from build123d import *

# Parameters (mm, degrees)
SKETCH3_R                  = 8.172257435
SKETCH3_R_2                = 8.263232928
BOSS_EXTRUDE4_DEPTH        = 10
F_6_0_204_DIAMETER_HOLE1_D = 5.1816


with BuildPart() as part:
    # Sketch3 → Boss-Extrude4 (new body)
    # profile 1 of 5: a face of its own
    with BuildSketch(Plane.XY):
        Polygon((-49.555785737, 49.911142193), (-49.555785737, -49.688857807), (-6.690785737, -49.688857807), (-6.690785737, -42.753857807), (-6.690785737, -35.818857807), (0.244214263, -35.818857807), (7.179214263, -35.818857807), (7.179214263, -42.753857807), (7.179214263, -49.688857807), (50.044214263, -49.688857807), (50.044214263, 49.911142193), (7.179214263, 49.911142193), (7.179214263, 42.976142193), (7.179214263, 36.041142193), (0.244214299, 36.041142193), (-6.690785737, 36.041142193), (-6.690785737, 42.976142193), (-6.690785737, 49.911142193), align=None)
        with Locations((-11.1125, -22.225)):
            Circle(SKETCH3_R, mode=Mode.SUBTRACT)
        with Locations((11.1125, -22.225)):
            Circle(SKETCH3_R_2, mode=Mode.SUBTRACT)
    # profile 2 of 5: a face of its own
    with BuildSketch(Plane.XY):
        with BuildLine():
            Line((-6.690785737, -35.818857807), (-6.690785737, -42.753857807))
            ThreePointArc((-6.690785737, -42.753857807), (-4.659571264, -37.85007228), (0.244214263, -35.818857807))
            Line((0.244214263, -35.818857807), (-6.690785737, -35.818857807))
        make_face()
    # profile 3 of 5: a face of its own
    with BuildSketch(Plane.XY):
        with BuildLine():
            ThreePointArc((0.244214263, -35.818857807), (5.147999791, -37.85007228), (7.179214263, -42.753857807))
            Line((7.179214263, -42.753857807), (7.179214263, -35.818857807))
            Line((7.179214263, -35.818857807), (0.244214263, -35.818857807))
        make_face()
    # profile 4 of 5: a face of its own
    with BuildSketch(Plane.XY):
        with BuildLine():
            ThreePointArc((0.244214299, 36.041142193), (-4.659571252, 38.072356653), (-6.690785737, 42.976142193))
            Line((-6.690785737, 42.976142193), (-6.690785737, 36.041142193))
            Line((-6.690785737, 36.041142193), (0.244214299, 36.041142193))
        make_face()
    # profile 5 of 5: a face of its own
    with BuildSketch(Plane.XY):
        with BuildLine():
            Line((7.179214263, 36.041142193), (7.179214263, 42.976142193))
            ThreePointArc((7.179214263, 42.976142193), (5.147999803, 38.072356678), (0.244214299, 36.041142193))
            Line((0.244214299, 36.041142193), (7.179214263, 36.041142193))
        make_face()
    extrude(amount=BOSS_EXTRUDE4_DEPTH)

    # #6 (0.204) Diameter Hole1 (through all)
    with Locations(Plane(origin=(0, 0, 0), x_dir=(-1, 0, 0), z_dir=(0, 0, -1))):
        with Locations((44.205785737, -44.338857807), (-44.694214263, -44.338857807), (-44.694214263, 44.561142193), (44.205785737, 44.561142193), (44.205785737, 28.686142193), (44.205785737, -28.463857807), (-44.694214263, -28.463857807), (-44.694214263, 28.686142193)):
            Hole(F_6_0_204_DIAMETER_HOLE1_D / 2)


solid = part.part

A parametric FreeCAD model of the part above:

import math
import FreeCAD as App
import Part
import Sketcher

doc = App.newDocument("Part")
body = doc.addObject("PartDesign::Body", "Body")

# Sketch on XY plane
sketch1 = body.newObject("Sketcher::SketchObject", "Sketch")
sketch1.AttachmentSupport = (doc.getObject("XY_Plane"), [""])
sketch1.MapMode = "FlatFace"
sketch1.addGeometry([
    Part.LineSegment(App.Vector(-49.555786, 49.911142, 0), App.Vector(-49.555786, -49.688858, 0)),  # 0
    Part.LineSegment(App.Vector(-49.555786, -49.688858, 0), App.Vector(-6.690786, -49.688858, 0)),  # 1
    Part.LineSegment(App.Vector(-6.690786, -49.688858, 0), App.Vector(-6.690786, -42.753858, 0)),  # 2
    Part.ArcOfCircle(Part.Circle(App.Vector(0.244214, -42.753858, 0), App.Vector(0, 0, 1), 6.935), math.radians(90), math.radians(180)),  # 3
    Part.ArcOfCircle(Part.Circle(App.Vector(0.244214, -42.753858, 0), App.Vector(0, 0, 1), 6.935), math.radians(0), math.radians(90)),  # 4
    Part.LineSegment(App.Vector(7.179214, -42.753858, 0), App.Vector(7.179214, -49.688858, 0)),  # 5
    Part.LineSegment(App.Vector(7.179214, -49.688858, 0), App.Vector(50.044214, -49.688858, 0)),  # 6
    Part.LineSegment(App.Vector(50.044214, -49.688858, 0), App.Vector(50.044214, 49.911142, 0)),  # 7
    Part.LineSegment(App.Vector(50.044214, 49.911142, 0), App.Vector(7.179214, 49.911142, 0)),  # 8
    Part.LineSegment(App.Vector(7.179214, 49.911142, 0), App.Vector(7.179214, 42.976142, 0)),  # 9
    Part.ArcOfCircle(Part.Circle(App.Vector(0.244214, 42.976142, 0), App.Vector(0, 0, 1), 6.935), math.radians(-90), math.radians(0)),  # 10
    Part.ArcOfCircle(Part.Circle(App.Vector(0.244214, 42.976142, 0), App.Vector(0, 0, 1), 6.935), math.radians(180), math.radians(270)),  # 11
    Part.LineSegment(App.Vector(-6.690786, 42.976142, 0), App.Vector(-6.690786, 49.911142, 0)),  # 12
    Part.LineSegment(App.Vector(-6.690786, 49.911142, 0), App.Vector(-49.555786, 49.911142, 0)),  # 13
    Part.Circle(App.Vector(-11.1125, -22.225, 0), App.Vector(0, 0, 1), 8.172257),  # 14
    Part.Circle(App.Vector(11.1125, -22.225, 0), App.Vector(0, 0, 1), 8.263233),  # 15
], False)
sketch1.addConstraint([
    Sketcher.Constraint("Coincident", 0, 2, 1, 1),
    Sketcher.Constraint("Coincident", 1, 2, 2, 1),
    Sketcher.Constraint("Tangent", 2, 2, 3, 2),
    Sketcher.Constraint("Tangent", 3, 1, 4, 2),
    Sketcher.Constraint("Tangent", 4, 1, 5, 1),
    Sketcher.Constraint("Coincident", 5, 2, 6, 1),
    Sketcher.Constraint("Coincident", 6, 2, 7, 1),
    Sketcher.Constraint("Coincident", 7, 2, 8, 1),
    Sketcher.Constraint("Coincident", 8, 2, 9, 1),
    Sketcher.Constraint("Tangent", 9, 2, 10, 2),
    Sketcher.Constraint("Tangent", 10, 1, 11, 2),
    Sketcher.Constraint("Tangent", 11, 1, 12, 1),
    Sketcher.Constraint("Coincident", 12, 2, 13, 1),
    Sketcher.Constraint("Coincident", 13, 2, 0, 1),
    Sketcher.Constraint("Vertical", 0),
    Sketcher.Constraint("Horizontal", 1),
    Sketcher.Constraint("Vertical", 2),
    Sketcher.Constraint("Vertical", 5),
    Sketcher.Constraint("Horizontal", 6),
    Sketcher.Constraint("Vertical", 7),
    Sketcher.Constraint("Horizontal", 8),
    Sketcher.Constraint("Vertical", 9),
    Sketcher.Constraint("Vertical", 12),
    Sketcher.Constraint("Horizontal", 13),
    Sketcher.Constraint("Equal", 3, 4),
    Sketcher.Constraint("Equal", 4, 10),
    Sketcher.Constraint("Equal", 10, 11),
    Sketcher.Constraint("Symmetric", 14, 3, 15, 3, -2),
    Sketcher.Constraint("Horizontal", 1, 2, 5, 2),
    Sketcher.Constraint("Horizontal", 8, 2, 12, 2),
    Sketcher.Constraint("Vertical", 4, 3, 10, 3),
    Sketcher.Constraint("Vertical", 11, 3, 3, 1),
    Sketcher.Constraint("Vertical", 3, 1, 10, 1),
    Sketcher.Constraint("Equal", 1, 6),
    Sketcher.Constraint("Equal", 5, 9),
    Sketcher.Constraint("DistanceY", 0, 2, 0, 1, 99.6),
    Sketcher.Constraint("Radius", 3, 6.935),
    Sketcher.Constraint("DistanceX", 0, 2, 4, 3, 49.8),
    Sketcher.Constraint("DistanceY", 2, 1, 2, 2, 6.935),
    Sketcher.Constraint("Diameter", 14, 16.344515),
    Sketcher.Constraint("Diameter", 15, 16.526466),
    Sketcher.Constraint("DistanceY", 14, 3, -1, 1, 22.225),
    Sketcher.Constraint("DistanceX", 14, 3, 15, 3, 22.225),
    Sketcher.Constraint("DistanceX", -1, 1, 3, 3, 0.244214),
    Sketcher.Constraint("DistanceY", 3, 3, -1, 1, 42.753858),
])
pad1 = body.newObject("PartDesign::Pad", "Pad")
pad1.Profile = sketch1
pad1.Length = 10

# Sketch on XY plane
sketch2 = body.newObject("Sketcher::SketchObject", "Sketch001")
sketch2.AttachmentSupport = (doc.getObject("XY_Plane"), [""])
sketch2.MapMode = "FlatFace"
sketch2.addGeometry([
    Part.Circle(App.Vector(-44.205786, -44.338858, 0), App.Vector(0, 0, 1), 2.5908),  # 0
    Part.Circle(App.Vector(44.694214, -44.338858, 0), App.Vector(0, 0, 1), 2.5908),  # 1
    Part.Circle(App.Vector(44.694214, 44.561142, 0), App.Vector(0, 0, 1), 2.5908),  # 2
    Part.Circle(App.Vector(-44.205786, 44.561142, 0), App.Vector(0, 0, 1), 2.5908),  # 3
    Part.Circle(App.Vector(-44.205786, 28.686142, 0), App.Vector(0, 0, 1), 2.5908),  # 4
    Part.Circle(App.Vector(-44.205786, -28.463858, 0), App.Vector(0, 0, 1), 2.5908),  # 5
    Part.Circle(App.Vector(44.694214, -28.463858, 0), App.Vector(0, 0, 1), 2.5908),  # 6
    Part.Circle(App.Vector(44.694214, 28.686142, 0), App.Vector(0, 0, 1), 2.5908),  # 7
], False)
sketch2.addConstraint([
    Sketcher.Constraint("Equal", 0, 1),
    Sketcher.Constraint("Equal", 1, 2),
    Sketcher.Constraint("Equal", 2, 3),
    Sketcher.Constraint("Equal", 3, 4),
    Sketcher.Constraint("Equal", 4, 5),
    Sketcher.Constraint("Equal", 5, 6),
    Sketcher.Constraint("Equal", 6, 7),
    Sketcher.Constraint("Horizontal", 0, 3, 1, 3),
    Sketcher.Constraint("Horizontal", 2, 3, 3, 3),
    Sketcher.Constraint("Horizontal", 5, 3, 6, 3),
    Sketcher.Constraint("Horizontal", 4, 3, 7, 3),
    Sketcher.Constraint("Vertical", 1, 3, 2, 3),
    Sketcher.Constraint("Vertical", 0, 3, 3, 3),
    Sketcher.Constraint("Vertical", 3, 3, 4, 3),
    Sketcher.Constraint("Vertical", 4, 3, 5, 3),
    Sketcher.Constraint("Vertical", 2, 3, 6, 3),
    Sketcher.Constraint("Vertical", 6, 3, 7, 3),
    Sketcher.Constraint("Diameter", 0, 5.1816),
    Sketcher.Constraint("DistanceX", 0, 3, 1, 3, 88.9),
    Sketcher.Constraint("DistanceY", 1, 3, 2, 3, 88.9),
    Sketcher.Constraint("DistanceY", 5, 3, 4, 3, 57.15),
    Sketcher.Constraint("DistanceY", 4, 3, 3, 3, 15.875),
    Sketcher.Constraint("DistanceX", 0, 3, -1, 1, 44.205786),
    Sketcher.Constraint("DistanceY", 0, 3, -1, 1, 44.338858),
])
doc.recompute()
hole = body.newObject("PartDesign::Hole", "Hole")
hole.Profile = sketch2
hole.ThreadType = "None"
hole.Diameter = 5.1816
hole.DepthType = "ThroughAll"
hole.Reversed = True

doc.recompute()
